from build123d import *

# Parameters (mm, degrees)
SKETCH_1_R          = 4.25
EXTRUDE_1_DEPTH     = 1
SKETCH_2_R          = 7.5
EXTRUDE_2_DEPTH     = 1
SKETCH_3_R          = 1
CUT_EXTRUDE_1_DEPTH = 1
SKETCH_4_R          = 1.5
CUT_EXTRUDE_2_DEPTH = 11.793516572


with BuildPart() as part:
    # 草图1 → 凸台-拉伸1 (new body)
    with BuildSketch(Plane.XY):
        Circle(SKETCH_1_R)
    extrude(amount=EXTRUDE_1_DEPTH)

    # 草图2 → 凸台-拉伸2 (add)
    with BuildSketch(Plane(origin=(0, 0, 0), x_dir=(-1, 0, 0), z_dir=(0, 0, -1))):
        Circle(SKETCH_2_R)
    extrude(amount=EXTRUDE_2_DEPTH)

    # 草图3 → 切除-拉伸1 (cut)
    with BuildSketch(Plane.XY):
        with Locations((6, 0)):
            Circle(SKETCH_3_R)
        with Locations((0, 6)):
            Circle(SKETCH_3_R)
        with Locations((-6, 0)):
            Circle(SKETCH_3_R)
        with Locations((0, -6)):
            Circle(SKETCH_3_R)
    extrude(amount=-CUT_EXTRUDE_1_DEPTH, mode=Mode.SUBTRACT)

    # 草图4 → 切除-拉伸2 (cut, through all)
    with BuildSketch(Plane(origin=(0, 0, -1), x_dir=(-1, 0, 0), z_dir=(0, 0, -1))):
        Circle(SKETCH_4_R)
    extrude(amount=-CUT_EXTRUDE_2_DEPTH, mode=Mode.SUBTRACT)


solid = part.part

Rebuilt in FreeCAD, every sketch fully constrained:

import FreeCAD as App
import Part
import Sketcher

doc = App.newDocument("Part")
body = doc.addObject("PartDesign::Body", "Body")

# Sketch on XY plane
sketch1 = doc.addObject("Sketcher::SketchObject", "Sketch")
body.addObject(sketch1)
sketch1.AttachmentSupport = (doc.XY_Plane, [""])
sketch1.MapMode = "FlatFace"
sketch1.addGeometry(Part.Circle(App.Vector(0, 0, 0), App.Vector(0, 0, 1), 4.25), False)
sketch1.addConstraint(Sketcher.Constraint("Coincident", 0, 3, -1, 1))
sketch1.addConstraint(Sketcher.Constraint("Diameter", 0, 8.5))
pad1 = doc.addObject("PartDesign::Pad", "Pad")
body.addObject(pad1)
pad1.Profile = sketch1
pad1.Length = 1

# Sketch on XY plane
sketch2 = doc.addObject("Sketcher::SketchObject", "Sketch001")
body.addObject(sketch2)
sketch2.AttachmentSupport = (doc.XY_Plane, [""])
sketch2.MapMode = "FlatFace"
sketch2.addGeometry(Part.Circle(App.Vector(0, 0, 0), App.Vector(0, 0, 1), 7.5), False)
sketch2.addConstraint(Sketcher.Constraint("Coincident", 0, 3, -1, 1))
sketch2.addConstraint(Sketcher.Constraint("Diameter", 0, 15.0))
pad2 = doc.addObject("PartDesign::Pad", "Pad001")
body.addObject(pad2)
pad2.Profile = sketch2
pad2.Length = 1
pad2.Reversed = True

# Sketch on XY plane
sketch3 = doc.addObject("Sketcher::SketchObject", "Sketch002")
body.addObject(sketch3)
sketch3.AttachmentSupport = (doc.XY_Plane, [""])
sketch3.MapMode = "FlatFace"
sketch3.addGeometry(Part.Circle(App.Vector(6, 0, 0), App.Vector(0, 0, 1), 1), False)
sketch3.addGeometry(Part.Circle(App.Vector(0, 6, 0), App.Vector(0, 0, 1), 1), False)
sketch3.addGeometry(Part.Circle(App.Vector(-6, 0, 0), App.Vector(0, 0, 1), 1), False)
sketch3.addGeometry(Part.Circle(App.Vector(0, -6, 0), App.Vector(0, 0, 1), 1), False)
sketch3.addConstraint(Sketcher.Constraint("Equal", 0, 1))
sketch3.addConstraint(Sketcher.Constraint("Equal", 1, 2))
sketch3.addConstraint(Sketcher.Constraint("Equal", 2, 3))
sketch3.addConstraint(Sketcher.Constraint("Symmetric", 0, 3, 2, 3, -1, 1))
sketch3.addConstraint(Sketcher.Constraint("Symmetric", 1, 3, 3, 3, -1, 1))
sketch3.addConstraint(Sketcher.Constraint("PointOnObject", 0, 3, -1))
sketch3.addConstraint(Sketcher.Constraint("PointOnObject", 1, 3, -2))
sketch3.addConstraint(Sketcher.Constraint("Diameter", 0, 2.0))
sketch3.addConstraint(Sketcher.Constraint("DistanceX", -1, 1, 0, 3, 6.0))
sketch3.addConstraint(Sketcher.Constraint("DistanceY", -1, 1, 1, 3, 6.0))
pocket1 = doc.addObject("PartDesign::Pocket", "Pocket")
body.addObject(pocket1)
pocket1.Profile = sketch3
pocket1.Length = 1

# Sketch on XY plane
sketch4 = doc.addObject("Sketcher::SketchObject", "Sketch003")
body.addObject(sketch4)
sketch4.AttachmentSupport = (doc.XY_Plane, [""])
sketch4.MapMode = "FlatFace"
sketch4.AttachmentOffset = App.Placement(App.Vector(0, 0, -1), App.Rotation())
sketch4.addGeometry(Part.Circle(App.Vector(0, 0, 0), App.Vector(0, 0, 1), 1.5), False)
sketch4.addConstraint(Sketcher.Constraint("Coincident", 0, 3, -1, 1))
sketch4.addConstraint(Sketcher.Constraint("Diameter", 0, 3.0))
pocket2 = doc.addObject("PartDesign::Pocket", "Pocket001")
body.addObject(pocket2)
pocket2.Profile = sketch4
pocket2.Type = "ThroughAll"
pocket2.Reversed = True

doc.recompute()
